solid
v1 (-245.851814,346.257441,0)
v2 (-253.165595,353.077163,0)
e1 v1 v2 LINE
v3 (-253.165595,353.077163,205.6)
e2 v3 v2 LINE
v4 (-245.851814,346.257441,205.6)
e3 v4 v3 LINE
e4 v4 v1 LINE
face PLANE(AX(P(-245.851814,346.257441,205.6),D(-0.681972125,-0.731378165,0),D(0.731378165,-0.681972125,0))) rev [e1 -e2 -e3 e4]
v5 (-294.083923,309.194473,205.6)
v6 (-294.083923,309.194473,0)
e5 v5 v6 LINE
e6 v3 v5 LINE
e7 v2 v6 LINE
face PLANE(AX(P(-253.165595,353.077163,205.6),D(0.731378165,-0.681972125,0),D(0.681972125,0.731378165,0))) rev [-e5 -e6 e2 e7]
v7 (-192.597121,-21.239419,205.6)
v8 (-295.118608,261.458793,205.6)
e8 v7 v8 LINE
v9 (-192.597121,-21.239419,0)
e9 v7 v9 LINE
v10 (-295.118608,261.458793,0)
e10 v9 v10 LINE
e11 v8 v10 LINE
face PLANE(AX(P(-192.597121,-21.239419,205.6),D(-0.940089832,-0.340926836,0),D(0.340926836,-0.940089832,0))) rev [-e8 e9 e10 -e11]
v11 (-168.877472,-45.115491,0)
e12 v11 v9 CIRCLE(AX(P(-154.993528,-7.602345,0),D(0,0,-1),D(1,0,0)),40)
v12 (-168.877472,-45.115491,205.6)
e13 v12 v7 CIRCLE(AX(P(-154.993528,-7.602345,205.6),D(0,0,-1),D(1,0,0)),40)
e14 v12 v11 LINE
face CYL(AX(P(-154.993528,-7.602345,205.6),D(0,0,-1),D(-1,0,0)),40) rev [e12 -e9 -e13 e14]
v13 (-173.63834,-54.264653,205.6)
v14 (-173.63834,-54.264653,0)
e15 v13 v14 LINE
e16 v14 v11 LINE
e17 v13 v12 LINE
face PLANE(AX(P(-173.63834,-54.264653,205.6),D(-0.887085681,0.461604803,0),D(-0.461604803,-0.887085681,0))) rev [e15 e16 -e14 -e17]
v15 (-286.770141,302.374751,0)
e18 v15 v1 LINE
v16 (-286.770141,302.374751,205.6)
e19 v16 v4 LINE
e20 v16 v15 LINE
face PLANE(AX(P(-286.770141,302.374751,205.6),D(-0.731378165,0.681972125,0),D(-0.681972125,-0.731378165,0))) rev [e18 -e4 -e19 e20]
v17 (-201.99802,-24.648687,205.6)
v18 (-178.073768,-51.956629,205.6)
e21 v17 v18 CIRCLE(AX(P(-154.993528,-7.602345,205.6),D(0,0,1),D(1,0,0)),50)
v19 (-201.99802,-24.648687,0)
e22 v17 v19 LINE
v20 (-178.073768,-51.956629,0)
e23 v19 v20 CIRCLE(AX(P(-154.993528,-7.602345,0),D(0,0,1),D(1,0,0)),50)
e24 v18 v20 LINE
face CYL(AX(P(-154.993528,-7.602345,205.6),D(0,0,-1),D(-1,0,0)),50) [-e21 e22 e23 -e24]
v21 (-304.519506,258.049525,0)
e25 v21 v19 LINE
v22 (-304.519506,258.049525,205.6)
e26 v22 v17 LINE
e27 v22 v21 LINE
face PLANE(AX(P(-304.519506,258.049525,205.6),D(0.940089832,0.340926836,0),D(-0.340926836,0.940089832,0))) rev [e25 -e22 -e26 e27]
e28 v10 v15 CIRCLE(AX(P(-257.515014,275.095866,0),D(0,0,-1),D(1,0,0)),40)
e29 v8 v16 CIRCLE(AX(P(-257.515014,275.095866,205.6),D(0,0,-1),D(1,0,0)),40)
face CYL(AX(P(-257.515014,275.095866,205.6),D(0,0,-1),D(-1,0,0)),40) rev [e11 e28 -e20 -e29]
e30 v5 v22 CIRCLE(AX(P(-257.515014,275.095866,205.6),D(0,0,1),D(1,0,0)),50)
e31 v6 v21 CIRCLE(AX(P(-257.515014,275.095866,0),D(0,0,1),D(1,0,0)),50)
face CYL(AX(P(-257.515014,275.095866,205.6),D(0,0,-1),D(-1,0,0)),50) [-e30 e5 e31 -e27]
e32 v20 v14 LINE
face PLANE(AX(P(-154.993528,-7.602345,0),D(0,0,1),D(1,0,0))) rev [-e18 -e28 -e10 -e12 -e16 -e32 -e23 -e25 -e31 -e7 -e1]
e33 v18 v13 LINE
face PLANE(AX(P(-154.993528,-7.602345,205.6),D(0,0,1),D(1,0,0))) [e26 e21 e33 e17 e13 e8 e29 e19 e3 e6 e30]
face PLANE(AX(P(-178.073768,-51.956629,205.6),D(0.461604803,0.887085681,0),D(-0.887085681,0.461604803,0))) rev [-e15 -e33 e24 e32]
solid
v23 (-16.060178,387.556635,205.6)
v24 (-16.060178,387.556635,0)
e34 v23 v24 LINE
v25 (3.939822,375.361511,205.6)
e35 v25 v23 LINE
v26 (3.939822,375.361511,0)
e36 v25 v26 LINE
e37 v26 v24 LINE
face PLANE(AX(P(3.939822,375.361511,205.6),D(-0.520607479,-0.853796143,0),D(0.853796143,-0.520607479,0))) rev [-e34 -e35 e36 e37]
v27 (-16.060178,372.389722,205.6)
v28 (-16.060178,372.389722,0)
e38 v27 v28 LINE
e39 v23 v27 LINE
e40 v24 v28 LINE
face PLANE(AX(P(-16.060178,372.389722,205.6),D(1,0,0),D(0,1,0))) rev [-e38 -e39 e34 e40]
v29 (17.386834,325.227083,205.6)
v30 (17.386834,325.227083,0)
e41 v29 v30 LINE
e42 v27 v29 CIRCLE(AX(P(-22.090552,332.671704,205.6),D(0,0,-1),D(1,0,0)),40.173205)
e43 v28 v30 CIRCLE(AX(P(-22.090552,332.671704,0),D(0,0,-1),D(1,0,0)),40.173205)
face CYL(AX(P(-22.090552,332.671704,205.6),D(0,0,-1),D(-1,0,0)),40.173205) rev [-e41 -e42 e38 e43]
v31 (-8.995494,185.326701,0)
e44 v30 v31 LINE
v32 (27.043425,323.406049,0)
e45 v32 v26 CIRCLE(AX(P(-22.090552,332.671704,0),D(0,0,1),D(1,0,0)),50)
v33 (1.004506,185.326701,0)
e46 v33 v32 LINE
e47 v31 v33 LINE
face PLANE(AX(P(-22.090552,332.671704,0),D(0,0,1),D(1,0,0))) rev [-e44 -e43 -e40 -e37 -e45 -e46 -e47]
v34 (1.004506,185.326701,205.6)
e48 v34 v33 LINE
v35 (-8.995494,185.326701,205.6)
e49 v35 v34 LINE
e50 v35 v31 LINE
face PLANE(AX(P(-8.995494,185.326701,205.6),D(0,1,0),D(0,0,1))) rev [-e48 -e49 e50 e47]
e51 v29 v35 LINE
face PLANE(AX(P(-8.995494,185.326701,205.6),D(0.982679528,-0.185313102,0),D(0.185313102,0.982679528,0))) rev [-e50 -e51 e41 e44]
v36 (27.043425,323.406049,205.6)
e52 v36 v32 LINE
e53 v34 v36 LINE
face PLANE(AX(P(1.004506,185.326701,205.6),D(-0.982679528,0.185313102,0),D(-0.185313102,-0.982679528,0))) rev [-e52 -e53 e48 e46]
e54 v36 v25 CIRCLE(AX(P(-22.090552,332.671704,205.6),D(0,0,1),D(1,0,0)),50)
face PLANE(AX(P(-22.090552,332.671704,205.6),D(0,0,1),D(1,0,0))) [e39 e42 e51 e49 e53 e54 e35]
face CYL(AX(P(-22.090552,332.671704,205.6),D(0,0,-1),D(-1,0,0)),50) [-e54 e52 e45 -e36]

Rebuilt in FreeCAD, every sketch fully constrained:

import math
import FreeCAD as App
import Part
import Sketcher

V = App.Vector

doc = App.newDocument("Part")
params = doc.addObject("Spreadsheet::Sheet", "Params")
for row, (alias, value) in enumerate([
    ("sketch1_radius", "50 mm"),
    ("sketch1_width", "10 mm"),
    ("pad1_length", "205.6 mm"),
    ("sketch2_radius", "40 mm"),
    ("sketch2_radius2", "50 mm"),
    ("sketch2_length", "60 mm"),
    ("sketch2_length2", "5 mm"),
    ("pad2_length", "205.6 mm"),
], start=1):
    params.set(f"A{row}", alias)
    params.set(f"B{row}", "=" + value)
    params.setAlias(f"B{row}", alias)

body = doc.addObject("PartDesign::Body", "Body")

sketch1 = body.newObject("Sketcher::SketchObject", "Sketch")
sketch1.AttachmentSupport = (doc.getObject("XY_Plane"), [""])
sketch1.MapMode = "FlatFace"
sketch1.addGeometry(Part.LineSegment(V(-8.995494, 185.326701, 0), V(1.004506, 185.326701, 0)), False)
sketch1.addGeometry(Part.LineSegment(V(1.004506, 185.326701, 0), V(27.043425, 323.406049, 0)), False)
sketch1.addGeometry(Part.ArcOfCircle(Part.Circle(V(-22.090552, 332.671704, 0), V(0, 0, 1), 50), math.radians(-10.679387), math.radians(58.626991)), False)
sketch1.addGeometry(Part.LineSegment(V(3.939822, 375.361511, 0), V(-16.060178, 387.556635, 0)), False)
sketch1.addGeometry(Part.LineSegment(V(-16.060178, 387.556635, 0), V(-16.060178, 372.389722, 0)), False)
sketch1.addGeometry(Part.ArcOfCircle(Part.Circle(V(-22.090552, 332.671704, 0), V(0, 0, 1), 40.173205), math.radians(-10.679387), math.radians(81.366736)), False)
sketch1.addGeometry(Part.LineSegment(V(17.386834, 325.227083, 0), V(-8.995494, 185.326701, 0)), False)
sketch1.addConstraint(Sketcher.Constraint("Coincident", 0, 2, 1, 1))
sketch1.addConstraint(Sketcher.Constraint("Coincident", 1, 2, 2, 1))
sketch1.addConstraint(Sketcher.Constraint("Coincident", 2, 2, 3, 1))
sketch1.addConstraint(Sketcher.Constraint("Coincident", 3, 2, 4, 1))
sketch1.addConstraint(Sketcher.Constraint("Coincident", 4, 2, 5, 2))
sketch1.addConstraint(Sketcher.Constraint("Coincident", 5, 1, 6, 1))
sketch1.addConstraint(Sketcher.Constraint("Coincident", 6, 2, 0, 1))
sketch1.addConstraint(Sketcher.Constraint("Horizontal", 0))
sketch1.addConstraint(Sketcher.Constraint("Vertical", 4))
sketch1.addConstraint(Sketcher.Constraint("Coincident", 5, 3, 2, 3))
sketch1.addConstraint(Sketcher.Constraint("Radius", 2, 50.0))
sketch1.addConstraint(Sketcher.Constraint("DistanceX", 0, 1, 0, 2, 10.0))
sketch1.addConstraint(Sketcher.Constraint("DistanceX", 3, 2, 2, 2, 20.0))
sketch1.addConstraint(Sketcher.Constraint("Radius", 5, 40.173205))
sketch1.addConstraint(Sketcher.Constraint("Distance", 1, 140.513102))
sketch1.addConstraint(Sketcher.Constraint("DistanceY", -1, 1, 0, 2, 185.326701))
sketch1.addConstraint(Sketcher.Constraint("DistanceY", 4, 2, 4, 1, 15.166913))
sketch1.addConstraint(Sketcher.Constraint("DistanceX", 2, 3, -1, 1, 22.090552))
sketch1.addConstraint(Sketcher.Constraint("DistanceY", -1, 1, 1, 2, 323.406049))
sketch1.addConstraint(Sketcher.Constraint("DistanceY", -1, 1, 2, 2, 375.361511))
sketch1.addConstraint(Sketcher.Constraint("DistanceY", 5, 3, 3, 2, 54.884931))
sketch1.addConstraint(Sketcher.Constraint("DistanceX", 5, 1, 1, 2, 9.656591))
sketch1.setExpression("Constraints[10]", "Params.sketch1_radius")
sketch1.setExpression("Constraints[11]", "Params.sketch1_width")
pad1 = body.newObject("PartDesign::Pad", "Pad")
pad1.Profile = sketch1
pad1.setExpression("Length", "Params.pad1_length")
body2 = doc.addObject("PartDesign::Body", "Body001")

sketch2 = body2.newObject("Sketcher::SketchObject", "Sketch001")
sketch2.AttachmentSupport = (doc.getObject("XY_Plane001"), [""])
sketch2.MapMode = "FlatFace"
sketch2.addGeometry(Part.LineSegment(V(-173.63834, -54.264653, 0), V(-168.877472, -45.115491, 0)), False)
sketch2.addGeometry(Part.ArcOfCircle(Part.Circle(V(-154.993528, -7.602345, 0), V(0, 0, 1), 40), math.radians(-160.066648), math.radians(-110.309955)), False)
sketch2.addGeometry(Part.LineSegment(V(-192.597121, -21.239419, 0), V(-295.118608, 261.458793, 0)), False)
sketch2.addGeometry(Part.ArcOfCircle(Part.Circle(V(-257.515014, 275.095866, 0), V(0, 0, 1), 40), math.radians(137.002055), math.radians(199.933352)), False)
sketch2.addGeometry(Part.LineSegment(V(-286.770141, 302.374751, 0), V(-245.851814, 346.257441, 0)), False)
sketch2.addGeometry(Part.LineSegment(V(-245.851814, 346.257441, 0), V(-253.165595, 353.077163, 0)), False)
sketch2.addGeometry(Part.LineSegment(V(-253.165595, 353.077163, 0), V(-294.083923, 309.194473, 0)), False)
sketch2.addGeometry(Part.ArcOfCircle(Part.Circle(V(-257.515014, 275.095866, 0), V(0, 0, 1), 50), math.radians(137.002055), math.radians(199.933352)), False)
sketch2.addGeometry(Part.LineSegment(V(-304.519506, 258.049525, 0), V(-201.99802, -24.648687, 0)), False)
sketch2.addGeometry(Part.ArcOfCircle(Part.Circle(V(-154.993528, -7.602345, 0), V(0, 0, 1), 50), math.radians(-160.066648), math.radians(-117.490711)), False)
sketch2.addGeometry(Part.LineSegment(V(-178.073768, -51.956629, 0), V(-173.63834, -54.264653, 0)), False)
sketch2.addConstraint(Sketcher.Constraint("Coincident", 0, 2, 1, 2))
sketch2.addConstraint(Sketcher.Constraint("Tangent", 1, 1, 2, 1))
sketch2.addConstraint(Sketcher.Constraint("Tangent", 2, 2, 3, 2))
sketch2.addConstraint(Sketcher.Constraint("Tangent", 3, 1, 4, 1))
sketch2.addConstraint(Sketcher.Constraint("Coincident", 4, 2, 5, 1))
sketch2.addConstraint(Sketcher.Constraint("Coincident", 5, 2, 6, 1))
sketch2.addConstraint(Sketcher.Constraint("Tangent", 6, 2, 7, 1))
sketch2.addConstraint(Sketcher.Constraint("Tangent", 7, 2, 8, 1))
sketch2.addConstraint(Sketcher.Constraint("Tangent", 8, 2, 9, 1))
sketch2.addConstraint(Sketcher.Constraint("Tangent", 9, 2, 10, 1))
sketch2.addConstraint(Sketcher.Constraint("Coincident", 10, 2, 0, 1))
sketch2.addConstraint(Sketcher.Constraint("Coincident", 7, 3, 3, 3))
sketch2.addConstraint(Sketcher.Constraint("Coincident", 9, 3, 1, 3))
sketch2.addConstraint(Sketcher.Constraint("Equal", 1, 3))
sketch2.addConstraint(Sketcher.Constraint("Equal", 7, 9))
sketch2.addConstraint(Sketcher.Constraint("Perpendicular", 4, 5))
sketch2.addConstraint(Sketcher.Constraint("Perpendicular", 5, 6))
sketch2.addConstraint(Sketcher.Constraint("Perpendicular", 0, 10))
sketch2.addConstraint(Sketcher.Constraint("Radius", 1, 40.0))
sketch2.addConstraint(Sketcher.Constraint("Radius", 7, 50.0))
sketch2.addConstraint(Sketcher.Constraint("Distance", 4, 60.0))
sketch2.addConstraint(Sketcher.Constraint("Distance", 10, 5.0))
sketch2.addConstraint(Sketcher.Constraint("DistanceX", 3, 3, 4, 2, 11.663201))
sketch2.addConstraint(Sketcher.Constraint("Distance", 2, 300.71404))
sketch2.addConstraint(Sketcher.Constraint("DistanceX", 1, 3, -1, 1, 154.993528))
sketch2.addConstraint(Sketcher.Constraint("DistanceY", 0, 2, -1, 1, 45.115491))
sketch2.addConstraint(Sketcher.Constraint("DistanceY", 1, 1, -1, 1, 21.239419))
sketch2.addConstraint(Sketcher.Constraint("DistanceX", 3, 1, -1, 1, 286.770141))
sketch2.setExpression("Constraints[18]", "Params.sketch2_radius")
sketch2.setExpression("Constraints[19]", "Params.sketch2_radius2")
sketch2.setExpression("Constraints[20]", "Params.sketch2_length")
sketch2.setExpression("Constraints[21]", "Params.sketch2_length2")
pad2 = body2.newObject("PartDesign::Pad", "Pad001")
pad2.Profile = sketch2
pad2.setExpression("Length", "Params.pad2_length")

doc.recompute()
